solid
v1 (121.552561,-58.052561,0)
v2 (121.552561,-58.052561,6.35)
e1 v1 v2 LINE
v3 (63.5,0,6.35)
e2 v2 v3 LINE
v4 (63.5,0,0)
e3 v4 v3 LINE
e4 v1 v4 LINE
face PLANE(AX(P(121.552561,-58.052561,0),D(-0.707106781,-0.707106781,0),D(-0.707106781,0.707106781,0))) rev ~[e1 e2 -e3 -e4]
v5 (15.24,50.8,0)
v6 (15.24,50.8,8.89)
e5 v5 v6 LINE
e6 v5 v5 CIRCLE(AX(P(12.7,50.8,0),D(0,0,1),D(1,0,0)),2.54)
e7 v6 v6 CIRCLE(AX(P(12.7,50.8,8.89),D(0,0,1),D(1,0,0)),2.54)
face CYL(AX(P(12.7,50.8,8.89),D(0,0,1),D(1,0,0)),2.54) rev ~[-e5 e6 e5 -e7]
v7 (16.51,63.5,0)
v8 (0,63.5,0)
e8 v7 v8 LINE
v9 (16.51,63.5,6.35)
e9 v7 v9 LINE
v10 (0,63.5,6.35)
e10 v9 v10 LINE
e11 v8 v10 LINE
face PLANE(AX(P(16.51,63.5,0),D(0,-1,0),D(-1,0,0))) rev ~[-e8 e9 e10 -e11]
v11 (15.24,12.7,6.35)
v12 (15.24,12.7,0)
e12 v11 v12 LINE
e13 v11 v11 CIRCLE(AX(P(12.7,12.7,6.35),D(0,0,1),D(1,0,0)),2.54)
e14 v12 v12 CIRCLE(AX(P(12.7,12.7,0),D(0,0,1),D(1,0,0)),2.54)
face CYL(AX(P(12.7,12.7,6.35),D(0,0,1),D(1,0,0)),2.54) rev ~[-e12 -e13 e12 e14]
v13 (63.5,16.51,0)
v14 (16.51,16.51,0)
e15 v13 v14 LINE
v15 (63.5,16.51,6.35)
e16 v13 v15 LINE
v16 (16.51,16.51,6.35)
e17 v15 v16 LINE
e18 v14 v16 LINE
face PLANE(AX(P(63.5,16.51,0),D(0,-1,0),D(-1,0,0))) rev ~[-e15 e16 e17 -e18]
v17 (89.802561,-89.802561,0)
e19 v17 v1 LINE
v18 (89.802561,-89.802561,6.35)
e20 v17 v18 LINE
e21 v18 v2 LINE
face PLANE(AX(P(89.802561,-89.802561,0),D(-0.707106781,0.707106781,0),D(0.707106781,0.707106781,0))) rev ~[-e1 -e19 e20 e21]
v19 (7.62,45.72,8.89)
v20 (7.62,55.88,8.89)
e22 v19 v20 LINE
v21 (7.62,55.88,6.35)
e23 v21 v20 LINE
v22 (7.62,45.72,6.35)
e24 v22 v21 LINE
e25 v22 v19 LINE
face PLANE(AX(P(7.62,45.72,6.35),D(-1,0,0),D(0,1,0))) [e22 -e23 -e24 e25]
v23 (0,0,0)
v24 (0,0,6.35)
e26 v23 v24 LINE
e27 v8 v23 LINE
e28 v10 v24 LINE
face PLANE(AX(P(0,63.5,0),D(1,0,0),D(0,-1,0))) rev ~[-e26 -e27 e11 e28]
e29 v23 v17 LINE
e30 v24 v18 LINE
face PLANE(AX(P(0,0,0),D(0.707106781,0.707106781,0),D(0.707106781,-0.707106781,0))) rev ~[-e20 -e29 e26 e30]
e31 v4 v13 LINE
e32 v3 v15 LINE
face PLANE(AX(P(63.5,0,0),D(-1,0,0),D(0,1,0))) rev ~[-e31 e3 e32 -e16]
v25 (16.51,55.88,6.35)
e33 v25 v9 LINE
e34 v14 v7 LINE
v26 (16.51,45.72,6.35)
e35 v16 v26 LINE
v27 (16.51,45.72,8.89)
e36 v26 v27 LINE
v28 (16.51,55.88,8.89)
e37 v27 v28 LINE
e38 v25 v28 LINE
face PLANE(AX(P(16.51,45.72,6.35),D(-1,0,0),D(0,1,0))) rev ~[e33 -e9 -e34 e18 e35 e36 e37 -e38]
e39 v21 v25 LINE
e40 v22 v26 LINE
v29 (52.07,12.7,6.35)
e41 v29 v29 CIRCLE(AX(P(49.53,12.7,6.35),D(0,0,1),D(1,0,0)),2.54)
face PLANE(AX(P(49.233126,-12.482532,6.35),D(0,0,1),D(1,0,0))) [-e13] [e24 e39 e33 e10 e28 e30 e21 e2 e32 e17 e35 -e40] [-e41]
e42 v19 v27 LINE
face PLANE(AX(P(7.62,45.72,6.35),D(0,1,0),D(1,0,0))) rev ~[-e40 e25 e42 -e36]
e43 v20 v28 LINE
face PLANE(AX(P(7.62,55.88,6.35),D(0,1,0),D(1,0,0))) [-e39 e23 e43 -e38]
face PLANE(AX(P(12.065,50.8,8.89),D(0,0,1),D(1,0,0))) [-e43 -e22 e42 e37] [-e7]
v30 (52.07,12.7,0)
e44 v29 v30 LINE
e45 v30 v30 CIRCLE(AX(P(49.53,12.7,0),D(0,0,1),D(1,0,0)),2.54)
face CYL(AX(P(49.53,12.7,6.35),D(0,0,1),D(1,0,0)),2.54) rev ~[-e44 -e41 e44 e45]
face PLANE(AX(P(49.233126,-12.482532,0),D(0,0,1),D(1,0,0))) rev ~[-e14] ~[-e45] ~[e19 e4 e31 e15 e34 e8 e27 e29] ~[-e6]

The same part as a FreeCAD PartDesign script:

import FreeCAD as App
import Part
import Sketcher
from FreeCAD import Vector
Q = App.Units.Quantity


def add_polygon(sketch, points):
    """Adds a closed chain of lines whose ends are joined by coincident constraints."""
    first, n = sketch.GeometryCount, len(points)
    for a, b in zip(points, points[1:] + points[:1]):
        sketch.addGeometry(Part.LineSegment(App.Vector(*a, 0), App.Vector(*b, 0)), False)
    for i in range(n):
        sketch.addConstraint(Sketcher.Constraint("Coincident", first + i, 2, first + (i + 1) % n, 1))

doc = App.newDocument("Part")
body = doc.addObject("PartDesign::Body", "Body")

# Sketch on XY plane
sketch1 = body.newObject("Sketcher::SketchObject", "Sketch")
sketch1.AttachmentSupport = (doc.getObject("XY_Plane"), [""])
sketch1.MapMode = "FlatFace"
add_polygon(sketch1, [(0, 64), (0, 0), (90, -90), (122, -58), (64, 0), (64, 17), (17, 17), (17, 64)])  # lines 0-7
sketch1.addConstraint(Sketcher.Constraint("Vertical", 0))
sketch1.addConstraint(Sketcher.Constraint("Vertical", 4))
sketch1.addConstraint(Sketcher.Constraint("Horizontal", 5))
sketch1.addConstraint(Sketcher.Constraint("Vertical", 6))
sketch1.addConstraint(Sketcher.Constraint("Horizontal", 7))
sketch1.addConstraint(Sketcher.Constraint("Coincident", 0, 2, -1, 1))
sketch1.addConstraint(Sketcher.Constraint("PointOnObject", 3, 2, -1))
sketch1.addConstraint(Sketcher.Constraint("Perpendicular", 1, 2))
sketch1.addConstraint(Sketcher.Constraint("Perpendicular", 2, 3))
sketch1.addConstraint(Sketcher.Constraint("Equal", 7, 4))
sketch1.addConstraint(Sketcher.Constraint("Equal", 5, 6))
sketch1.addConstraint(Sketcher.Constraint("Distance", 1, Q("5 in")))
sketch1.addConstraint(Sketcher.Constraint("DistanceY", 0, 2, 0, 1, Q("2.5 in")))
sketch1.addConstraint(Sketcher.Constraint("Angle", 1, Q("-45 deg")))
sketch1.addConstraint(Sketcher.Constraint("DistanceX", 5, 2, 5, 1, Q("1.85 in")))
pad1 = body.newObject("PartDesign::Pad", "Pad")
pad1.Profile = sketch1
pad1.Length = Q("0.25 in")

# Sketch on XY plane
sketch2 = body.newObject("Sketcher::SketchObject", "Sketch001")
sketch2.AttachmentSupport = (doc.getObject("XY_Plane"), [""])
sketch2.MapMode = "FlatFace"
sketch2.AttachmentOffset = App.Placement(Vector(0, 0, 0.25 * 25.4), App.Rotation())
sketch2.addGeometry(Part.Circle(Vector(12.7, 50.8, 0), Vector(0, 0, 1), 2.5), False)
sketch2.addGeometry(Part.Circle(Vector(49.5, 12.7, 0), Vector(0, 0, 1), 2.5), False)
sketch2.addGeometry(Part.Circle(Vector(12.7, 12.7, 0), Vector(0, 0, 1), 2.5), False)
sketch2.addConstraint(Sketcher.Constraint("Equal", 0, 1))
sketch2.addConstraint(Sketcher.Constraint("Equal", 1, 2))
sketch2.addConstraint(Sketcher.Constraint("Horizontal", 1, 3, 2, 3))
sketch2.addConstraint(Sketcher.Constraint("Vertical", 0, 3, 2, 3))
sketch2.addConstraint(Sketcher.Constraint("Diameter", 0, Q("0.2 in")))
sketch2.addConstraint(Sketcher.Constraint("DistanceY", -1, 1, 0, 3, Q("2 in")))
sketch2.addConstraint(Sketcher.Constraint("DistanceX", -1, 1, 0, 3, Q("0.5 in")))
sketch2.addConstraint(Sketcher.Constraint("DistanceY", -1, 1, 1, 3, Q("0.5 in")))
sketch2.addConstraint(Sketcher.Constraint("DistanceX", -1, 1, 1, 3, Q("1.95 in")))
pocket1 = body.newObject("PartDesign::Pocket", "Pocket")
pocket1.Profile = sketch2
pocket1.Length = Q("0.25 in")

# Sketch on XY plane
sketch3 = body.newObject("Sketcher::SketchObject", "Sketch002")
sketch3.AttachmentSupport = (doc.getObject("XY_Plane"), [""])
sketch3.MapMode = "FlatFace"
sketch3.AttachmentOffset = App.Placement(Vector(0, 0, 0.25 * 25.4), App.Rotation())
add_polygon(sketch3, [(8, 56), (8, 46), (17, 46), (17, 56)])  # lines 0-3
sketch3.addConstraint(Sketcher.Constraint("Vertical", 0))
sketch3.addConstraint(Sketcher.Constraint("Horizontal", 1))
sketch3.addConstraint(Sketcher.Constraint("Vertical", 2))
sketch3.addConstraint(Sketcher.Constraint("Horizontal", 3))
sketch3.addConstraint(Sketcher.Constraint("DistanceY", 0, 2, 0, 1, Q("0.4 in")))
sketch3.addConstraint(Sketcher.Constraint("DistanceX", 1, 1, 1, 2, Q("0.35 in")))
sketch3.addConstraint(Sketcher.Constraint("DistanceX", -1, 1, 0, 2, Q("0.3 in")))
sketch3.addConstraint(Sketcher.Constraint("DistanceY", -1, 1, 0, 2, Q("1.8 in")))
pad2 = body.newObject("PartDesign::Pad", "Pad001")
pad2.Profile = sketch3
pad2.Length = Q("0.1 in")

# Sketch on XY plane
sketch4 = body.newObject("Sketcher::SketchObject", "Sketch003")
sketch4.AttachmentSupport = (doc.getObject("XY_Plane"), [""])
sketch4.MapMode = "FlatFace"
sketch4.AttachmentOffset = App.Placement(Vector(0, 0, 0.35 * 25.4), App.Rotation())
sketch4.addGeometry(Part.Circle(Vector(12.7, 50.8, 0), Vector(0, 0, 1), 2.5), False)
sketch4.addConstraint(Sketcher.Constraint("Diameter", 0, Q("0.2 in")))
sketch4.addConstraint(Sketcher.Constraint("DistanceY", -1, 1, 0, 3, Q("2 in")))
sketch4.addConstraint(Sketcher.Constraint("DistanceX", -1, 1, 0, 3, Q("0.5 in")))
pocket2 = body.newObject("PartDesign::Pocket", "Pocket001")
pocket2.Profile = sketch4
pocket2.Length = Q("1 in")

doc.recompute()
